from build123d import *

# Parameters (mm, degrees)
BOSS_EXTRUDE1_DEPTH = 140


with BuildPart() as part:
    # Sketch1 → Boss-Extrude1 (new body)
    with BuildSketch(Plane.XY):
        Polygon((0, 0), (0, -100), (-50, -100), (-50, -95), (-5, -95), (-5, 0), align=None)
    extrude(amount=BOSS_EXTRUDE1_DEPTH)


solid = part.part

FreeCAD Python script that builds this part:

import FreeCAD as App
import Part
import Sketcher

V = App.Vector

doc = App.newDocument("Part")
body = doc.addObject("PartDesign::Body", "Body")

# Sketch on XY plane
sketch1 = body.newObject("Sketcher::SketchObject", "Sketch")
sketch1.AttachmentSupport = (doc.getObject("XY_Plane"), [""])
sketch1.MapMode = "FlatFace"
sketch1.addGeometry([
    Part.LineSegment(V(0, -100, 0), V(0, 0, 0)),  # 0
    Part.LineSegment(V(0, 0, 0), V(-5, 0, 0)),  # 1
    Part.LineSegment(V(-5, 0, 0), V(-5, -95, 0)),  # 2
    Part.LineSegment(V(-5, -95, 0), V(-50, -95, 0)),  # 3
    Part.LineSegment(V(-50, -95, 0), V(-50, -100, 0)),  # 4
    Part.LineSegment(V(-50, -100, 0), V(0, -100, 0)),  # 5
], False)
sketch1.addConstraint([
    Sketcher.Constraint("Coincident", 0, 2, 1, 1),
    Sketcher.Constraint("Coincident", 1, 2, 2, 1),
    Sketcher.Constraint("Coincident", 2, 2, 3, 1),
    Sketcher.Constraint("Coincident", 3, 2, 4, 1),
    Sketcher.Constraint("Coincident", 4, 2, 5, 1),
    Sketcher.Constraint("Coincident", 5, 2, 0, 1),
    Sketcher.Constraint("Vertical", 0),
    Sketcher.Constraint("Horizontal", 1),
    Sketcher.Constraint("Vertical", 2),
    Sketcher.Constraint("Horizontal", 3),
    Sketcher.Constraint("Vertical", 4),
    Sketcher.Constraint("Horizontal", 5),
    Sketcher.Constraint("Coincident", 0, 2, -1, 1),
    Sketcher.Constraint("Equal", 1, 4),
    Sketcher.Constraint("DistanceX", 1, 2, 1, 1, 5.0),
    Sketcher.Constraint("DistanceX", 3, 2, 3, 1, 45.0),
    Sketcher.Constraint("DistanceY", 0, 1, 0, 2, 100.0),
])
pad1 = body.newObject("PartDesign::Pad", "Pad")
pad1.Profile = sketch1
pad1.Length = 140

doc.recompute()
